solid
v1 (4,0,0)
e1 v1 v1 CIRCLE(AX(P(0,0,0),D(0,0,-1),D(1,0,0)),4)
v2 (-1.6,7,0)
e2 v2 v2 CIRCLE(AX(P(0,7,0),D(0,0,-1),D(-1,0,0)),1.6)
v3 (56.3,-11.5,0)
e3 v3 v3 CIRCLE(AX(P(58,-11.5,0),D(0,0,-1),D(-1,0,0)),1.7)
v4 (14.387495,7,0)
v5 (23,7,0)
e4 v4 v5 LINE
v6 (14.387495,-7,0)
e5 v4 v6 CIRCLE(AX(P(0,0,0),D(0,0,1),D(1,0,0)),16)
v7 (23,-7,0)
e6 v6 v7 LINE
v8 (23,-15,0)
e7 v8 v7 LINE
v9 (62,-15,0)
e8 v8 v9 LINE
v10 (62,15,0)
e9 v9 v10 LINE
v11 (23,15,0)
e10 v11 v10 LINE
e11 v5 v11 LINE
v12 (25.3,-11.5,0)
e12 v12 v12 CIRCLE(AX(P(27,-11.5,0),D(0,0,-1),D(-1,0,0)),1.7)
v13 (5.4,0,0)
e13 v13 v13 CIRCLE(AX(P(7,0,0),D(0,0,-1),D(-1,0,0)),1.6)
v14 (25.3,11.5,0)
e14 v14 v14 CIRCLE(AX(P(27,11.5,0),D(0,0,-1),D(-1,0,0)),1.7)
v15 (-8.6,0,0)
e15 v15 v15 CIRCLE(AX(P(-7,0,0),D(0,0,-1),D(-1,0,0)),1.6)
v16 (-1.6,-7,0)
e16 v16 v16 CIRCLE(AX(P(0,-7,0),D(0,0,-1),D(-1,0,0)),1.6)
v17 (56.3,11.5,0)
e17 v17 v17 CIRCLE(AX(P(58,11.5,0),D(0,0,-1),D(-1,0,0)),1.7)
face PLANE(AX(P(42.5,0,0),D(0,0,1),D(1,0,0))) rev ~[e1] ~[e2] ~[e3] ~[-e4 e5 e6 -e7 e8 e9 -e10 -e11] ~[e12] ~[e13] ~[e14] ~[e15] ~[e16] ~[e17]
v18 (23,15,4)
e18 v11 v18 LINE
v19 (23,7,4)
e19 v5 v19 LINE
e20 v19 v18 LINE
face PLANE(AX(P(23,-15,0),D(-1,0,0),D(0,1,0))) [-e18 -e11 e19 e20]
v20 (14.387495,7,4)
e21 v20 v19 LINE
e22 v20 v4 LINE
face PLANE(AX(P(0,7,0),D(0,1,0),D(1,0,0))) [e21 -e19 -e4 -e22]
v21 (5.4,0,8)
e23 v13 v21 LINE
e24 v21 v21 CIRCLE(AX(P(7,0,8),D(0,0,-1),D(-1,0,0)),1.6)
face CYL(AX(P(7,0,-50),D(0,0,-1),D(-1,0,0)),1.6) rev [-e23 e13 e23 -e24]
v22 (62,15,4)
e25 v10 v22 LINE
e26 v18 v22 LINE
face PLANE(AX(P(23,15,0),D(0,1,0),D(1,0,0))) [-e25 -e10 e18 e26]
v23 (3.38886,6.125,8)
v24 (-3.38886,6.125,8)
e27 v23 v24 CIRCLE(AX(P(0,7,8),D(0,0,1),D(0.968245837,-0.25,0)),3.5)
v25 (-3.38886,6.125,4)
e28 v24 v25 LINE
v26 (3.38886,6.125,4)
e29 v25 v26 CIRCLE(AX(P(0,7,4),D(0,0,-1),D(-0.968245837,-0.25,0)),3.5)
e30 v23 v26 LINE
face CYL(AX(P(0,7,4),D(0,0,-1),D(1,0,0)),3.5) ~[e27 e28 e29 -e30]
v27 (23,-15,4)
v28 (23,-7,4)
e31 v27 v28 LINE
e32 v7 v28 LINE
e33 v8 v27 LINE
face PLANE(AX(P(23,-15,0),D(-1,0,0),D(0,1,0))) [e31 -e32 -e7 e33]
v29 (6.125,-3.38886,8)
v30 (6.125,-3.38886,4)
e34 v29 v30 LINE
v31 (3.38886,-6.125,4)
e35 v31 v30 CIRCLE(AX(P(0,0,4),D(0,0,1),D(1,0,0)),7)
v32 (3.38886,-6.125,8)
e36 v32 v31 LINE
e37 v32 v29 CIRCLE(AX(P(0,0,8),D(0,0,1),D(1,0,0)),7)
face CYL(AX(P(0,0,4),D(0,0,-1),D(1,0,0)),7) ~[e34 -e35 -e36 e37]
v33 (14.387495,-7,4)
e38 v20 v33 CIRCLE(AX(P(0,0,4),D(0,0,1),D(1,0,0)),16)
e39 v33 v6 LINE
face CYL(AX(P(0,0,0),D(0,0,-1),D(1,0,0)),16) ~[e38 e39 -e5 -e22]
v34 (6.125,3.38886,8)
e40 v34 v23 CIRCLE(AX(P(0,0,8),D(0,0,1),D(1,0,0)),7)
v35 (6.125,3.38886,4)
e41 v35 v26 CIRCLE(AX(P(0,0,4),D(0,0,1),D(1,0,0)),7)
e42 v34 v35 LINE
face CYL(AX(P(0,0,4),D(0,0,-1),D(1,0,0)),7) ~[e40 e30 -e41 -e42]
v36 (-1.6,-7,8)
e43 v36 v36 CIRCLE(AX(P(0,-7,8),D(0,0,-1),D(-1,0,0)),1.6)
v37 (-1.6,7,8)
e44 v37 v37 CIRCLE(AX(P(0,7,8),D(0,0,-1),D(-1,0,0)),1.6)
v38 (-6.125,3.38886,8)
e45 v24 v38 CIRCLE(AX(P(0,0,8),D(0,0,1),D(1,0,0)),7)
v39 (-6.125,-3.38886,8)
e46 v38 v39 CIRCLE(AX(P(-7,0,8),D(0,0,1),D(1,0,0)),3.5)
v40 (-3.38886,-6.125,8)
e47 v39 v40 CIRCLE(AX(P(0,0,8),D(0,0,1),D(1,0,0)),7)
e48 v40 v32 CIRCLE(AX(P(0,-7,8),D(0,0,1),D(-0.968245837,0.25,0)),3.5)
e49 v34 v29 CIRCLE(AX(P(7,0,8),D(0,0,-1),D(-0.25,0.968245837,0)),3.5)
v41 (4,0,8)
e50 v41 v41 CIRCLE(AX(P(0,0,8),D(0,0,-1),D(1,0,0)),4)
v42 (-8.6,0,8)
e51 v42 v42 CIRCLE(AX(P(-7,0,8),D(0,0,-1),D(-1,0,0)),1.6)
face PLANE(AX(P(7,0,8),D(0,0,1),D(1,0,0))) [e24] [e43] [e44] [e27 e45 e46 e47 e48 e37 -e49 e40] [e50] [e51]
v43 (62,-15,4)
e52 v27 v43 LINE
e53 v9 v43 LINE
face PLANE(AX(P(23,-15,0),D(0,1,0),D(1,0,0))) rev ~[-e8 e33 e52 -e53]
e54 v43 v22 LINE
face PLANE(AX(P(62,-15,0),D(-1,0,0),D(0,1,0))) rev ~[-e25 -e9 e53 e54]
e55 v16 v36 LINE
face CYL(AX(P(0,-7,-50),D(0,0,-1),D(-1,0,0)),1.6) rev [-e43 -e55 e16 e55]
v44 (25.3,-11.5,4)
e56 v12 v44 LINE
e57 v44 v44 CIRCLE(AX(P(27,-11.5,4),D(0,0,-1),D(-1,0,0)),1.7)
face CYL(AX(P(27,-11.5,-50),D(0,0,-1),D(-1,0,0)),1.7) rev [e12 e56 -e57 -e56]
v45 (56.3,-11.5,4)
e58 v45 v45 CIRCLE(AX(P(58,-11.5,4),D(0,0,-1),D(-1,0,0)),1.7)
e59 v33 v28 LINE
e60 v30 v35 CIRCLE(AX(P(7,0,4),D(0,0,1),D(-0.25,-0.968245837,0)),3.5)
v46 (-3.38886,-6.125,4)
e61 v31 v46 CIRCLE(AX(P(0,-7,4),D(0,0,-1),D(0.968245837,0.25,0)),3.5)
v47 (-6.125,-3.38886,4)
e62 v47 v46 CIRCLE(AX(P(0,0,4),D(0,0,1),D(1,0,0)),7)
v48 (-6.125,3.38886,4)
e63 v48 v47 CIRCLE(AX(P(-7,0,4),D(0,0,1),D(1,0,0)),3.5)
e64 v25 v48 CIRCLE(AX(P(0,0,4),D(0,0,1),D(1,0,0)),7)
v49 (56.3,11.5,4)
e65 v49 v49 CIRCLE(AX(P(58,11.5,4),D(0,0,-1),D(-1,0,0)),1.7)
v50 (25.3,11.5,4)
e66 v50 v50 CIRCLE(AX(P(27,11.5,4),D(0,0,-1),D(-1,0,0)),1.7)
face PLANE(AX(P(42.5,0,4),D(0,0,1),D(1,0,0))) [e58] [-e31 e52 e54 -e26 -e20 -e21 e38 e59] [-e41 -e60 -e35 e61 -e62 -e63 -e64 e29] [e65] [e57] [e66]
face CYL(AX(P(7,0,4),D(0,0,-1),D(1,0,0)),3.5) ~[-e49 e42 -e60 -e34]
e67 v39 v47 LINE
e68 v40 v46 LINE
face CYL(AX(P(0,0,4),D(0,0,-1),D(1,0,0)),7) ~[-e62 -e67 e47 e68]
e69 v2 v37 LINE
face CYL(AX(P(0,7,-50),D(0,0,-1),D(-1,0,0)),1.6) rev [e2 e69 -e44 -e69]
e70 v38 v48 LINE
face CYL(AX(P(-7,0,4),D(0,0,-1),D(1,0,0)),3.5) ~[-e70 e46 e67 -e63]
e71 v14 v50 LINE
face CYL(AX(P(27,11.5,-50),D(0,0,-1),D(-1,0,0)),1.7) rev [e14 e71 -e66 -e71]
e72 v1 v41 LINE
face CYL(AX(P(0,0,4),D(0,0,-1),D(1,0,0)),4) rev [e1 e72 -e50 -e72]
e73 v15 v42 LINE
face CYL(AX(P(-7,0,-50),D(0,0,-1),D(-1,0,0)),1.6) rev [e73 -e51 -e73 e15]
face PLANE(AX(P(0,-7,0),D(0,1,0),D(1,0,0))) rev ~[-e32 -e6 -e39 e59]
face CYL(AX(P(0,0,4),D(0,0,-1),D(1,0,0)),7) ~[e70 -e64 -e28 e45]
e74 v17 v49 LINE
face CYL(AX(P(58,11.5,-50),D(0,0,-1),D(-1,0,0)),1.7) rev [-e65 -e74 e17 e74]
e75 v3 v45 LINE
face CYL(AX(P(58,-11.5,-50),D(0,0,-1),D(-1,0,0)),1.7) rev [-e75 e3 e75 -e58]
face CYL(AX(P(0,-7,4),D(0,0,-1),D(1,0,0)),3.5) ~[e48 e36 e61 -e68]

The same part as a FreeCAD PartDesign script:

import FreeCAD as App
import Part
import Sketcher


def add_polygon(sketch, points):
    """Adds a closed chain of lines whose ends are joined by coincident constraints."""
    first, n = sketch.GeometryCount, len(points)
    for a, b in zip(points, points[1:] + points[:1]):
        sketch.addGeometry(Part.LineSegment(App.Vector(*a, 0), App.Vector(*b, 0)), False)
    for i in range(n):
        sketch.addConstraint(Sketcher.Constraint("Coincident", first + i, 2, first + (i + 1) % n, 1))

doc = App.newDocument("Part")
body = doc.addObject("PartDesign::Body", "Body")

sketch1 = body.newObject("Sketcher::SketchObject", "Sketch")
sketch1.AttachmentSupport = (doc.getObject("XY_Plane"), [""])
sketch1.MapMode = "FlatFace"
sketch1.addGeometry(Part.Circle(App.Vector(0, 0, 0), App.Vector(0, 0, 1), 16), False)
sketch1.addConstraint([
    Sketcher.Constraint("Coincident", 0, 3, -1, 1),
    Sketcher.Constraint("Diameter", 0, 32.0),
])
pad1 = body.newObject("PartDesign::Pad", "Pad")
pad1.Profile = sketch1
pad1.Length = 4

sketch2 = body.newObject("Sketcher::SketchObject", "Sketch001")
sketch2.AttachmentSupport = (doc.getObject("XY_Plane"), [""])
sketch2.MapMode = "FlatFace"
add_polygon(sketch2, [(0, 7), (0, -7), (28, -7), (28, 7)])
sketch2.addConstraint([
    Sketcher.Constraint("Vertical", 0),
    Sketcher.Constraint("Horizontal", 1),
    Sketcher.Constraint("Vertical", 2),
    Sketcher.Constraint("Horizontal", 3),
    Sketcher.Constraint("Symmetric", 0, 2, 3, 2, -1, 1),
    Sketcher.Constraint("DistanceX", 1, 1, 1, 2, 28.0),
    Sketcher.Constraint("DistanceY", 0, 2, 0, 1, 14.0),
])
pad2 = body.newObject("PartDesign::Pad", "Pad001")
pad2.Profile = sketch2
pad2.Length = 4

sketch3 = body.newObject("Sketcher::SketchObject", "Sketch002")
sketch3.AttachmentSupport = (doc.getObject("XY_Plane"), [""])
sketch3.MapMode = "FlatFace"
add_polygon(sketch3, [(23, 15), (23, -15), (62, -15), (62, 15)])
sketch3.addConstraint([
    Sketcher.Constraint("Vertical", 0),
    Sketcher.Constraint("Horizontal", 1),
    Sketcher.Constraint("Vertical", 2),
    Sketcher.Constraint("Horizontal", 3),
    Sketcher.Constraint("DistanceX", 1, 1, 1, 2, 39.0),
    Sketcher.Constraint("DistanceY", 0, 2, 0, 1, 30.0),
    Sketcher.Constraint("DistanceX", -1, 1, 0, 2, 23.0),
    Sketcher.Constraint("DistanceY", 0, 2, -1, 1, 15.0),
])
pad3 = body.newObject("PartDesign::Pad", "Pad002")
pad3.Profile = sketch3
pad3.Length = 4

sketch4 = body.newObject("Sketcher::SketchObject", "Sketch003")
sketch4.AttachmentSupport = (doc.getObject("XY_Plane"), [""])
sketch4.MapMode = "FlatFace"
sketch4.AttachmentOffset = App.Placement(App.Vector(0, 0, 4), App.Rotation())
sketch4.addGeometry([
    Part.Circle(App.Vector(0, 0, 0), App.Vector(0, 0, 1), 7),
    Part.Circle(App.Vector(0, 0, 0), App.Vector(0, 0, 1), 4),
], False)
sketch4.addConstraint([
    Sketcher.Constraint("Coincident", 0, 3, -1, 1),
    Sketcher.Constraint("Coincident", 1, 3, -1, 1),
    Sketcher.Constraint("Diameter", 0, 14.0),
    Sketcher.Constraint("Diameter", 1, 8.0),
])
pad4 = body.newObject("PartDesign::Pad", "Pad003")
pad4.Profile = sketch4
pad4.Length = 4

sketch5 = body.newObject("Sketcher::SketchObject", "Sketch004")
sketch5.AttachmentSupport = (doc.getObject("XY_Plane"), [""])
sketch5.MapMode = "FlatFace"
sketch5.AttachmentOffset = App.Placement(App.Vector(0, 0, 4), App.Rotation())
sketch5.addGeometry([
    Part.Circle(App.Vector(7, 0, 0), App.Vector(0, 0, 1), 3.5),
    Part.Circle(App.Vector(-7, 0, 0), App.Vector(0, 0, 1), 3.5),
    Part.Circle(App.Vector(0, 7, 0), App.Vector(0, 0, 1), 3.5),
    Part.Circle(App.Vector(0, -7, 0), App.Vector(0, 0, 1), 3.5),
], False)
sketch5.addConstraint([
    Sketcher.Constraint("Equal", 0, 1),
    Sketcher.Constraint("Equal", 1, 2),
    Sketcher.Constraint("Equal", 2, 3),
    Sketcher.Constraint("Symmetric", 0, 3, 1, 3, -1, 1),
    Sketcher.Constraint("Symmetric", 2, 3, 3, 3, -1, 1),
    Sketcher.Constraint("PointOnObject", 0, 3, -1),
    Sketcher.Constraint("PointOnObject", 2, 3, -2),
    Sketcher.Constraint("Diameter", 0, 7.0),
    Sketcher.Constraint("DistanceX", -1, 1, 0, 3, 7.0),
    Sketcher.Constraint("DistanceY", -1, 1, 2, 3, 7.0),
])
pad5 = body.newObject("PartDesign::Pad", "Pad004")
pad5.Profile = sketch5
pad5.Length = 4

sketch6 = body.newObject("Sketcher::SketchObject", "Sketch005")
sketch6.AttachmentSupport = (doc.getObject("XY_Plane"), [""])
sketch6.MapMode = "FlatFace"
sketch6.AttachmentOffset = App.Placement(App.Vector(0, 0, -50), App.Rotation())
sketch6.addGeometry([
    Part.Circle(App.Vector(7, 0, 0), App.Vector(0, 0, 1), 1.6),
    Part.Circle(App.Vector(-7, 0, 0), App.Vector(0, 0, 1), 1.6),
    Part.Circle(App.Vector(0, 7, 0), App.Vector(0, 0, 1), 1.6),
    Part.Circle(App.Vector(0, -7, 0), App.Vector(0, 0, 1), 1.6),
], False)
sketch6.addConstraint([
    Sketcher.Constraint("Equal", 0, 1),
    Sketcher.Constraint("Equal", 1, 2),
    Sketcher.Constraint("Equal", 2, 3),
    Sketcher.Constraint("Symmetric", 0, 3, 1, 3, -1, 1),
    Sketcher.Constraint("Symmetric", 2, 3, 3, 3, -1, 1),
    Sketcher.Constraint("PointOnObject", 0, 3, -1),
    Sketcher.Constraint("PointOnObject", 2, 3, -2),
    Sketcher.Constraint("Diameter", 0, 3.2),
    Sketcher.Constraint("DistanceX", -1, 1, 0, 3, 7.0),
    Sketcher.Constraint("DistanceY", -1, 1, 2, 3, 7.0),
])
pocket1 = body.newObject("PartDesign::Pocket", "Pocket")
pocket1.Profile = sketch6
pocket1.Type = "ThroughAll"
pocket1.Reversed = True

sketch7 = body.newObject("Sketcher::SketchObject", "Sketch006")
sketch7.AttachmentSupport = (doc.getObject("XY_Plane"), [""])
sketch7.MapMode = "FlatFace"
sketch7.AttachmentOffset = App.Placement(App.Vector(0, 0, -50), App.Rotation())
sketch7.addGeometry(Part.Circle(App.Vector(0, 0, 0), App.Vector(0, 0, 1), 4), False)
sketch7.addConstraint([
    Sketcher.Constraint("Coincident", 0, 3, -1, 1),
    Sketcher.Constraint("Diameter", 0, 8.0),
])
pocket2 = body.newObject("PartDesign::Pocket", "Pocket001")
pocket2.Profile = sketch7
pocket2.Type = "ThroughAll"
pocket2.Reversed = True

sketch8 = body.newObject("Sketcher::SketchObject", "Sketch007")
sketch8.AttachmentSupport = (doc.getObject("XY_Plane"), [""])
sketch8.MapMode = "FlatFace"
sketch8.AttachmentOffset = App.Placement(App.Vector(0, 0, -50), App.Rotation())
sketch8.addGeometry([
    Part.Circle(App.Vector(27, -11.5, 0), App.Vector(0, 0, 1), 1.7),
    Part.Circle(App.Vector(27, 11.5, 0), App.Vector(0, 0, 1), 1.7),
    Part.Circle(App.Vector(58, -11.5, 0), App.Vector(0, 0, 1), 1.7),
    Part.Circle(App.Vector(58, 11.5, 0), App.Vector(0, 0, 1), 1.7),
], False)
sketch8.addConstraint([
    Sketcher.Constraint("Equal", 0, 1),
    Sketcher.Constraint("Equal", 1, 2),
    Sketcher.Constraint("Equal", 2, 3),
    Sketcher.Constraint("Symmetric", 0, 3, 1, 3, -1),
    Sketcher.Constraint("Symmetric", 2, 3, 3, 3, -1),
    Sketcher.Constraint("Horizontal", 0, 3, 2, 3),
    Sketcher.Constraint("Diameter", 0, 3.4),
    Sketcher.Constraint("DistanceX", -1, 1, 0, 3, 27.0),
    Sketcher.Constraint("DistanceX", -1, 1, 2, 3, 58.0),
    Sketcher.Constraint("DistanceY", 0, 3, 1, 3, 23.0),
])
pocket3 = body.newObject("PartDesign::Pocket", "Pocket002")
pocket3.Profile = sketch8
pocket3.Type = "ThroughAll"
pocket3.Reversed = True

doc.recompute()
